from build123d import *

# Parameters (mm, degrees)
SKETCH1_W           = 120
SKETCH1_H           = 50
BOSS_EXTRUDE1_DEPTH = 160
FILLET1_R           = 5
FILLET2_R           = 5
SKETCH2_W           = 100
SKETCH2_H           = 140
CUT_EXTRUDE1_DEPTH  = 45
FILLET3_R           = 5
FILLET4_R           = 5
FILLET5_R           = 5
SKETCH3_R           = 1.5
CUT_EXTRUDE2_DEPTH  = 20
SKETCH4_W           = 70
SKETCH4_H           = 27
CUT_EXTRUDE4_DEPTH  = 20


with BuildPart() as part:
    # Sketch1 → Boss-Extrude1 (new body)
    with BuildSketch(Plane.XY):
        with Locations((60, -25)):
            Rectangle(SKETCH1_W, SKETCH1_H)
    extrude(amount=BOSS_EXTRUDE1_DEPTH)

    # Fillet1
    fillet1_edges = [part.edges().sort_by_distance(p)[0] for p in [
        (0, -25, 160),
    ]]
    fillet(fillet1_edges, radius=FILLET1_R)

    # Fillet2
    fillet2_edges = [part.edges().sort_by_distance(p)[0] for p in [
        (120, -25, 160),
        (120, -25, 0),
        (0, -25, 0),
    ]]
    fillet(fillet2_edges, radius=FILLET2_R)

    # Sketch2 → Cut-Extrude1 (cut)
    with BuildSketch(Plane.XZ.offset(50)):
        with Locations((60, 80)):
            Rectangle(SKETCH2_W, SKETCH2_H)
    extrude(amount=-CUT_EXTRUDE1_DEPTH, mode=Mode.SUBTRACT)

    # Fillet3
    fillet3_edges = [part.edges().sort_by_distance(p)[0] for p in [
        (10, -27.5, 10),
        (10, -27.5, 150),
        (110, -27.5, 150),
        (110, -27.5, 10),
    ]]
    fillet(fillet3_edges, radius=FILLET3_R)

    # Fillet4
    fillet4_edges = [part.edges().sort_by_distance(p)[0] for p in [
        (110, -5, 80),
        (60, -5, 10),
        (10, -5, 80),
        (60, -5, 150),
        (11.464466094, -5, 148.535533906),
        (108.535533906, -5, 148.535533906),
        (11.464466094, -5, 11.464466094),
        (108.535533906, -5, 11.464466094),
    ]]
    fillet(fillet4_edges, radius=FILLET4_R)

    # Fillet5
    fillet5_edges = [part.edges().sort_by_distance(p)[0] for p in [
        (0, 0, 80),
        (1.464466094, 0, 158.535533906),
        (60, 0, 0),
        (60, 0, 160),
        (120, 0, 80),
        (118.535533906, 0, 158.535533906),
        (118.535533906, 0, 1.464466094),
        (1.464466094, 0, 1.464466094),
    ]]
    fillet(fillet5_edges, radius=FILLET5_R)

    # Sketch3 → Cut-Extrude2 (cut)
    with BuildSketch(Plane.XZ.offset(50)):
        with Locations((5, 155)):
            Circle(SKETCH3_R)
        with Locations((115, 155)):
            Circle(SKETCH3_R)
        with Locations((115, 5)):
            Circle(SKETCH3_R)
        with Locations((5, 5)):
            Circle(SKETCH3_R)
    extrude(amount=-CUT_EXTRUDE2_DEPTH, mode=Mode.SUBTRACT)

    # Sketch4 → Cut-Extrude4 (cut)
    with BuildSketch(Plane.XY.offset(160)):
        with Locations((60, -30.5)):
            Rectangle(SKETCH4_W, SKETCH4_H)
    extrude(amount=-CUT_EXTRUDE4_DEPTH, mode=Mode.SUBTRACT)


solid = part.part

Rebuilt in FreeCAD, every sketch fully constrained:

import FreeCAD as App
import Part
import Sketcher
from FreeCAD import Vector
Q = App.Units.Quantity


def edges_at(feature, points):
    """Names of the edges that pass closest to the given points."""
    edges = feature.Shape.Edges
    near = lambda p: min(range(len(edges)), key=lambda i: edges[i].distToShape(Part.Vertex(*p))[0])
    return sorted({f"Edge{near(p) + 1}" for p in points})

doc = App.newDocument("Part")
body = doc.addObject("PartDesign::Body", "Body")

sketch1 = doc.addObject("Sketcher::SketchObject", "Sketch")
body.addObject(sketch1)
sketch1.AttachmentSupport = (doc.XY_Plane, [""])
sketch1.MapMode = "FlatFace"
sketch1.addGeometry(Part.LineSegment(Vector(0, 0, 0), Vector(0, -50, 0)), False)
sketch1.addGeometry(Part.LineSegment(Vector(0, -50, 0), Vector(120, -50, 0)), False)
sketch1.addGeometry(Part.LineSegment(Vector(120, -50, 0), Vector(120, 0, 0)), False)
sketch1.addGeometry(Part.LineSegment(Vector(120, 0, 0), Vector(0, 0, 0)), False)
sketch1.addConstraint(Sketcher.Constraint("Coincident", 0, 2, 1, 1))
sketch1.addConstraint(Sketcher.Constraint("Coincident", 1, 2, 2, 1))
sketch1.addConstraint(Sketcher.Constraint("Coincident", 2, 2, 3, 1))
sketch1.addConstraint(Sketcher.Constraint("Coincident", 3, 2, 0, 1))
sketch1.addConstraint(Sketcher.Constraint("Vertical", 0))
sketch1.addConstraint(Sketcher.Constraint("Horizontal", 1))
sketch1.addConstraint(Sketcher.Constraint("Vertical", 2))
sketch1.addConstraint(Sketcher.Constraint("Horizontal", 3))
sketch1.addConstraint(Sketcher.Constraint("Coincident", 3, 2, -1, 1))
sketch1.addConstraint(Sketcher.Constraint("DistanceX", 1, 1, 1, 2, Q("120 mm")))
sketch1.addConstraint(Sketcher.Constraint("DistanceY", 0, 2, 0, 1, Q("50 mm")))
pad1 = doc.addObject("PartDesign::Pad", "Pad")
body.addObject(pad1)
pad1.Profile = sketch1
pad1.Length = 160
doc.recompute()

fillet = doc.addObject("PartDesign::Fillet", "Fillet")
body.addObject(fillet)
fillet.Base = (pad1, edges_at(pad1, [(0, -25, 160)]))
fillet.Radius = 5
doc.recompute()

fillet2 = doc.addObject("PartDesign::Fillet", "Fillet001")
body.addObject(fillet2)
fillet2.Base = (fillet, edges_at(fillet, [(120, -25, 160), (120, -25, 0), (0, -25, 0)]))
fillet2.Radius = 5

sketch2 = doc.addObject("Sketcher::SketchObject", "Sketch001")
body.addObject(sketch2)
sketch2.AttachmentSupport = (doc.XZ_Plane, [""])
sketch2.MapMode = "FlatFace"
sketch2.AttachmentOffset = App.Placement(Vector(0, 0, 50), App.Rotation())
sketch2.addGeometry(Part.LineSegment(Vector(10, 150, 0), Vector(10, 10, 0)), False)
sketch2.addGeometry(Part.LineSegment(Vector(10, 10, 0), Vector(110, 10, 0)), False)
sketch2.addGeometry(Part.LineSegment(Vector(110, 10, 0), Vector(110, 150, 0)), False)
sketch2.addGeometry(Part.LineSegment(Vector(110, 150, 0), Vector(10, 150, 0)), False)
sketch2.addConstraint(Sketcher.Constraint("Coincident", 0, 2, 1, 1))
sketch2.addConstraint(Sketcher.Constraint("Coincident", 1, 2, 2, 1))
sketch2.addConstraint(Sketcher.Constraint("Coincident", 2, 2, 3, 1))
sketch2.addConstraint(Sketcher.Constraint("Coincident", 3, 2, 0, 1))
sketch2.addConstraint(Sketcher.Constraint("Vertical", 0))
sketch2.addConstraint(Sketcher.Constraint("Horizontal", 1))
sketch2.addConstraint(Sketcher.Constraint("Vertical", 2))
sketch2.addConstraint(Sketcher.Constraint("Horizontal", 3))
sketch2.addConstraint(Sketcher.Constraint("DistanceX", 1, 1, 1, 2, Q("100 mm")))
sketch2.addConstraint(Sketcher.Constraint("DistanceY", 0, 2, 0, 1, Q("140 mm")))
sketch2.addConstraint(Sketcher.Constraint("DistanceX", -1, 1, 0, 2, Q("10 mm")))
sketch2.addConstraint(Sketcher.Constraint("DistanceY", -1, 1, 0, 2, Q("10 mm")))
pocket1 = doc.addObject("PartDesign::Pocket", "Pocket")
body.addObject(pocket1)
pocket1.Profile = sketch2
pocket1.Length = 45
doc.recompute()

fillet3 = doc.addObject("PartDesign::Fillet", "Fillet002")
body.addObject(fillet3)
fillet3.Base = (pocket1, edges_at(pocket1, [
    (10, -27.5, 10),
    (10, -27.5, 150),
    (110, -27.5, 150),
    (110, -27.5, 10),
]))
fillet3.Radius = 5
doc.recompute()

fillet4 = doc.addObject("PartDesign::Fillet", "Fillet003")
body.addObject(fillet4)
fillet4.Base = (fillet3, edges_at(fillet3, [
    (110, -5, 80),
    (60, -5, 10),
    (10, -5, 80),
    (60, -5, 150),
    (11.464, -5, 148.536),
    (108.536, -5, 148.536),
    (11.464, -5, 11.464),
    (108.536, -5, 11.464),
]))
fillet4.Radius = 5
doc.recompute()

fillet5 = doc.addObject("PartDesign::Fillet", "Fillet004")
body.addObject(fillet5)
fillet5.Base = (fillet4, edges_at(fillet4, [
    (0, 0, 80),
    (1.464, 0, 158.536),
    (60, 0, 0),
    (60, 0, 160),
    (120, 0, 80),
    (118.536, 0, 158.536),
    (118.536, 0, 1.464),
    (1.464, 0, 1.464),
]))
fillet5.Radius = 5

sketch3 = doc.addObject("Sketcher::SketchObject", "Sketch002")
body.addObject(sketch3)
sketch3.AttachmentSupport = (doc.XZ_Plane, [""])
sketch3.MapMode = "FlatFace"
sketch3.AttachmentOffset = App.Placement(Vector(0, 0, 50), App.Rotation())
sketch3.addGeometry(Part.Circle(Vector(5, 155, 0), Vector(0, 0, 1), 1.5), False)
sketch3.addGeometry(Part.Circle(Vector(115, 155, 0), Vector(0, 0, 1), 1.5), False)
sketch3.addGeometry(Part.Circle(Vector(115, 5, 0), Vector(0, 0, 1), 1.5), False)
sketch3.addGeometry(Part.Circle(Vector(5, 5, 0), Vector(0, 0, 1), 1.5), False)
sketch3.addConstraint(Sketcher.Constraint("Equal", 0, 1))
sketch3.addConstraint(Sketcher.Constraint("Equal", 1, 2))
sketch3.addConstraint(Sketcher.Constraint("Equal", 2, 3))
sketch3.addConstraint(Sketcher.Constraint("Horizontal", 0, 3, 1, 3))
sketch3.addConstraint(Sketcher.Constraint("Horizontal", 2, 3, 3, 3))
sketch3.addConstraint(Sketcher.Constraint("Vertical", 1, 3, 2, 3))
sketch3.addConstraint(Sketcher.Constraint("Vertical", 0, 3, 3, 3))
sketch3.addConstraint(Sketcher.Constraint("Diameter", 0, Q("3 mm")))
sketch3.addConstraint(Sketcher.Constraint("DistanceX", -1, 1, 0, 3, Q("5 mm")))
sketch3.addConstraint(Sketcher.Constraint("DistanceY", -1, 1, 0, 3, Q("155 mm")))
sketch3.addConstraint(Sketcher.Constraint("DistanceX", -1, 1, 1, 3, Q("115 mm")))
sketch3.addConstraint(Sketcher.Constraint("DistanceY", -1, 1, 2, 3, Q("5 mm")))
pocket2 = doc.addObject("PartDesign::Pocket", "Pocket001")
body.addObject(pocket2)
pocket2.Profile = sketch3
pocket2.Length = 20

sketch4 = doc.addObject("Sketcher::SketchObject", "Sketch003")
body.addObject(sketch4)
sketch4.AttachmentSupport = (doc.XY_Plane, [""])
sketch4.MapMode = "FlatFace"
sketch4.AttachmentOffset = App.Placement(Vector(0, 0, 160), App.Rotation())
sketch4.addGeometry(Part.LineSegment(Vector(25, -17, 0), Vector(25, -44, 0)), False)
sketch4.addGeometry(Part.LineSegment(Vector(25, -44, 0), Vector(95, -44, 0)), False)
sketch4.addGeometry(Part.LineSegment(Vector(95, -44, 0), Vector(95, -17, 0)), False)
sketch4.addGeometry(Part.LineSegment(Vector(95, -17, 0), Vector(25, -17, 0)), False)
sketch4.addConstraint(Sketcher.Constraint("Coincident", 0, 2, 1, 1))
sketch4.addConstraint(Sketcher.Constraint("Coincident", 1, 2, 2, 1))
sketch4.addConstraint(Sketcher.Constraint("Coincident", 2, 2, 3, 1))
sketch4.addConstraint(Sketcher.Constraint("Coincident", 3, 2, 0, 1))
sketch4.addConstraint(Sketcher.Constraint("Vertical", 0))
sketch4.addConstraint(Sketcher.Constraint("Horizontal", 1))
sketch4.addConstraint(Sketcher.Constraint("Vertical", 2))
sketch4.addConstraint(Sketcher.Constraint("Horizontal", 3))
sketch4.addConstraint(Sketcher.Constraint("DistanceX", 1, 1, 1, 2, Q("70 mm")))
sketch4.addConstraint(Sketcher.Constraint("DistanceY", 0, 2, 0, 1, Q("27 mm")))
sketch4.addConstraint(Sketcher.Constraint("DistanceX", -1, 1, 0, 2, Q("25 mm")))
sketch4.addConstraint(Sketcher.Constraint("DistanceY", 0, 2, -1, 1, Q("44 mm")))
pocket3 = doc.addObject("PartDesign::Pocket", "Pocket002")
body.addObject(pocket3)
pocket3.Profile = sketch4
pocket3.Length = 20

doc.recompute()
